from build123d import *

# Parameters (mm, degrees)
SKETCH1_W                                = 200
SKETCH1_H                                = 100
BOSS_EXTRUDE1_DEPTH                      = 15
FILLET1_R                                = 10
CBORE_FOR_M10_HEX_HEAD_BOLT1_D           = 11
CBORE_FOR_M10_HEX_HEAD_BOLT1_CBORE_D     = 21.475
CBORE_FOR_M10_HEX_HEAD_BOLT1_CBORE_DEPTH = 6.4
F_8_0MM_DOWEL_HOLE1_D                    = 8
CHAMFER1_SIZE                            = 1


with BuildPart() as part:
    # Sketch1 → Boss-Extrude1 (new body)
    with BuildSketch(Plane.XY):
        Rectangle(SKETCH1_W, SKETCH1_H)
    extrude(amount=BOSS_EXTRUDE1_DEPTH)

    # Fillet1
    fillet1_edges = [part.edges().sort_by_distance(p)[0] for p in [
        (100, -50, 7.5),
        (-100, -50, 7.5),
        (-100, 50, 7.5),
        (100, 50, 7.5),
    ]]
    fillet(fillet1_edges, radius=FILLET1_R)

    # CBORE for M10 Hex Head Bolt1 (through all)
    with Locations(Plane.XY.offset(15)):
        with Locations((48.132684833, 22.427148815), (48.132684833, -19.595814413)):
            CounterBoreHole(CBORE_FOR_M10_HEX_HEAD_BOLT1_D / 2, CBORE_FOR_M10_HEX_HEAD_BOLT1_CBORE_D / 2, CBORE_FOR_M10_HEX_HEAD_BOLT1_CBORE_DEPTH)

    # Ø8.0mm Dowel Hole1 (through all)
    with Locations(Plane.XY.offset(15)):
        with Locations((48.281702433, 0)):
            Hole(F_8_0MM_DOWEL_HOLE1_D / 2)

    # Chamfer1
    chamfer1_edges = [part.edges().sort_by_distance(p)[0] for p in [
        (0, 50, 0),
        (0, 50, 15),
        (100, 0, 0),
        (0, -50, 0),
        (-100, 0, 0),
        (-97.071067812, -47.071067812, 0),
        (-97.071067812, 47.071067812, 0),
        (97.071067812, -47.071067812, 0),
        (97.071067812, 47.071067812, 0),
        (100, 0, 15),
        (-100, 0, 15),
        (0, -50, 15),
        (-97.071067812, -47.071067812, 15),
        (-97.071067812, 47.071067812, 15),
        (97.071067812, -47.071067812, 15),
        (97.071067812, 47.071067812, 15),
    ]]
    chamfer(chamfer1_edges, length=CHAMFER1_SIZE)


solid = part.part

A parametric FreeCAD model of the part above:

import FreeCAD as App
import Part
import Sketcher
Q = App.Units.Quantity


def edges_at(feature, points):
    """Names of the edges that pass closest to the given points."""
    edges = feature.Shape.Edges
    near = lambda p: min(range(len(edges)), key=lambda i: edges[i].distToShape(Part.Vertex(*p))[0])
    return sorted({f"Edge{near(p) + 1}" for p in points})

doc = App.newDocument("Part")
body = doc.addObject("PartDesign::Body", "Body")

# Sketch on XY plane
sketch1 = body.newObject("Sketcher::SketchObject", "Sketch")
sketch1.AttachmentSupport = (doc.getObject("XY_Plane"), [""])
sketch1.MapMode = "FlatFace"
sketch1.addGeometry(Part.LineSegment(App.Vector(-100, 50, 0), App.Vector(-100, -50, 0)), False)
sketch1.addGeometry(Part.LineSegment(App.Vector(-100, -50, 0), App.Vector(100, -50, 0)), False)
sketch1.addGeometry(Part.LineSegment(App.Vector(100, -50, 0), App.Vector(100, 50, 0)), False)
sketch1.addGeometry(Part.LineSegment(App.Vector(100, 50, 0), App.Vector(-100, 50, 0)), False)
sketch1.addConstraint(Sketcher.Constraint("Coincident", 0, 2, 1, 1))
sketch1.addConstraint(Sketcher.Constraint("Coincident", 1, 2, 2, 1))
sketch1.addConstraint(Sketcher.Constraint("Coincident", 2, 2, 3, 1))
sketch1.addConstraint(Sketcher.Constraint("Coincident", 3, 2, 0, 1))
sketch1.addConstraint(Sketcher.Constraint("Vertical", 0))
sketch1.addConstraint(Sketcher.Constraint("Horizontal", 1))
sketch1.addConstraint(Sketcher.Constraint("Vertical", 2))
sketch1.addConstraint(Sketcher.Constraint("Horizontal", 3))
sketch1.addConstraint(Sketcher.Constraint("Symmetric", 0, 2, 2, 2, -1, 1))
sketch1.addConstraint(Sketcher.Constraint("DistanceX", 1, 1, 1, 2, Q("200 mm")))
sketch1.addConstraint(Sketcher.Constraint("DistanceY", 0, 2, 0, 1, Q("100 mm")))
pad1 = body.newObject("PartDesign::Pad", "Pad")
pad1.Profile = sketch1
pad1.Length = 15
doc.recompute()

fillet = body.newObject("PartDesign::Fillet", "Fillet")
fillet.Base = (pad1, edges_at(pad1, [
    (100, -50, 7.5),
    (-100, -50, 7.5),
    (-100, 50, 7.5),
    (100, 50, 7.5),
]))
fillet.Radius = 10

# Sketch on XY plane
sketch2 = body.newObject("Sketcher::SketchObject", "Sketch001")
sketch2.AttachmentSupport = (doc.getObject("XY_Plane"), [""])
sketch2.MapMode = "FlatFace"
sketch2.AttachmentOffset = App.Placement(App.Vector(0, 0, 15), App.Rotation())
sketch2.addGeometry(Part.Circle(App.Vector(48, 22, 0), App.Vector(0, 0, 1), 6), False)
sketch2.addGeometry(Part.Circle(App.Vector(48, -20, 0), App.Vector(0, 0, 1), 6), False)
sketch2.addConstraint(Sketcher.Constraint("Equal", 0, 1))
sketch2.addConstraint(Sketcher.Constraint("Vertical", 0, 3, 1, 3))
sketch2.addConstraint(Sketcher.Constraint("Diameter", 0, Q("11 mm")))
sketch2.addConstraint(Sketcher.Constraint("DistanceY", -1, 1, 0, 3, Q("22.427149 mm")))
sketch2.addConstraint(Sketcher.Constraint("DistanceX", -1, 1, 0, 3, Q("48.132685 mm")))
sketch2.addConstraint(Sketcher.Constraint("DistanceY", 1, 3, -1, 1, Q("19.595814 mm")))
doc.recompute()
hole = body.newObject("PartDesign::Hole", "Hole")
hole.Profile = sketch2
hole.ThreadType = "None"
hole.Diameter = 11
hole.DepthType = "ThroughAll"
hole.HoleCutType = "Counterbore"
hole.HoleCutDiameter = 21.475
hole.HoleCutDepth = 6.4

# Sketch on XY plane
sketch3 = body.newObject("Sketcher::SketchObject", "Sketch002")
sketch3.AttachmentSupport = (doc.getObject("XY_Plane"), [""])
sketch3.MapMode = "FlatFace"
sketch3.AttachmentOffset = App.Placement(App.Vector(0, 0, 15), App.Rotation())
sketch3.addGeometry(Part.Circle(App.Vector(48.3, 0, 0), App.Vector(0, 0, 1), 4), False)
sketch3.addConstraint(Sketcher.Constraint("PointOnObject", 0, 3, -1))
sketch3.addConstraint(Sketcher.Constraint("Diameter", 0, Q("8 mm")))
sketch3.addConstraint(Sketcher.Constraint("DistanceX", -1, 1, 0, 3, Q("48.281702 mm")))
doc.recompute()
hole2 = body.newObject("PartDesign::Hole", "Hole001")
hole2.Profile = sketch3
hole2.ThreadType = "None"
hole2.Diameter = 8
hole2.DepthType = "ThroughAll"
doc.recompute()

chamfer = body.newObject("PartDesign::Chamfer", "Chamfer")
chamfer.Base = (hole2, edges_at(hole2, [
    (0, 50, 0),
    (0, 50, 15),
    (100, 0, 0),
    (0, -50, 0),
    (-100, 0, 0),
    (-97.071, -47.071, 0),
    (-97.071, 47.071, 0),
    (97.071, -47.071, 0),
    (97.071, 47.071, 0),
    (100, 0, 15),
    (-100, 0, 15),
    (0, -50, 15),
    (-97.071, -47.071, 15),
    (-97.071, 47.071, 15),
    (97.071, -47.071, 15),
    (97.071, 47.071, 15),
]))
chamfer.Size = 1

doc.recompute()
